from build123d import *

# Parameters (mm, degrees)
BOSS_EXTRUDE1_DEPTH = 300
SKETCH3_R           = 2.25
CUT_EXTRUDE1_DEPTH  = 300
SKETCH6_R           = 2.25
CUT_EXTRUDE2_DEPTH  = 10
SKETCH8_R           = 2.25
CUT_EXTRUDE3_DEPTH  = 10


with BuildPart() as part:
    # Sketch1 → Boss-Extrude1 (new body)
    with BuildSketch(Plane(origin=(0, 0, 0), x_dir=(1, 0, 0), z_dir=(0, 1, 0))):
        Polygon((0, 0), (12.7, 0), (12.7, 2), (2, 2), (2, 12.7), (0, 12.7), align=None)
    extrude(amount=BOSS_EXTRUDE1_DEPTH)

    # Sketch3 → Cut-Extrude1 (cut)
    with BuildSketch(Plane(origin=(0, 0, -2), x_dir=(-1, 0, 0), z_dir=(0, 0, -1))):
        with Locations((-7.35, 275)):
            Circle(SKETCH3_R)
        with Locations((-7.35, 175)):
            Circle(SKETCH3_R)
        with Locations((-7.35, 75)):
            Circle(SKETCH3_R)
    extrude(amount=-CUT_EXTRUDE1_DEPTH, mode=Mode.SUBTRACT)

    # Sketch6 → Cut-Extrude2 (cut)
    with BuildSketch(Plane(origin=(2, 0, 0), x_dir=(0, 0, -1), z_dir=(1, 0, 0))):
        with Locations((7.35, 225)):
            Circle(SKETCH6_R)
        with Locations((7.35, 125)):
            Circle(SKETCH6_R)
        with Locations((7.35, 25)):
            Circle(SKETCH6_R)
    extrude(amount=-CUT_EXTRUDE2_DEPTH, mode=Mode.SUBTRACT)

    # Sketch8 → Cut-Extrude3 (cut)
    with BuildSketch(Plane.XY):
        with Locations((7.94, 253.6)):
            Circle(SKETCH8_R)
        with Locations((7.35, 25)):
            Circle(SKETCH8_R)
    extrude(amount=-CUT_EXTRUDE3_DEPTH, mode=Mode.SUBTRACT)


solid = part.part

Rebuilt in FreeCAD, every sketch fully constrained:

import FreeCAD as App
import Part
import Sketcher
from FreeCAD import Vector


def add_polygon(sketch, points):
    """Adds a closed chain of lines whose ends are joined by coincident constraints."""
    first, n = sketch.GeometryCount, len(points)
    for a, b in zip(points, points[1:] + points[:1]):
        sketch.addGeometry(Part.LineSegment(App.Vector(*a, 0), App.Vector(*b, 0)), False)
    for i in range(n):
        sketch.addConstraint(Sketcher.Constraint("Coincident", first + i, 2, first + (i + 1) % n, 1))

doc = App.newDocument("Part")
body = doc.addObject("PartDesign::Body", "Body")

sketch1 = body.newObject("Sketcher::SketchObject", "Sketch")
sketch1.AttachmentSupport = (doc.getObject("XZ_Plane"), [""])
sketch1.MapMode = "FlatFace"
add_polygon(sketch1, [(0, 0), (12.7, 0), (12.7, -2), (2, -2), (2, -12.7), (0, -12.7)])
sketch1.addConstraint([
    Sketcher.Constraint("Horizontal", 0),
    Sketcher.Constraint("Vertical", 1),
    Sketcher.Constraint("Horizontal", 2),
    Sketcher.Constraint("Vertical", 3),
    Sketcher.Constraint("Horizontal", 4),
    Sketcher.Constraint("Vertical", 5),
    Sketcher.Constraint("Coincident", 5, 2, -1, 1),
    Sketcher.Constraint("Equal", 4, 1),
    Sketcher.Constraint("Equal", 2, 3),
    Sketcher.Constraint("DistanceX", 4, 2, 4, 1, 2.0),
    Sketcher.Constraint("DistanceX", 0, 1, 0, 2, 12.7),
])
pad1 = body.newObject("PartDesign::Pad", "Pad")
pad1.Profile = sketch1
pad1.Length = 300
pad1.Reversed = True

sketch2 = body.newObject("Sketcher::SketchObject", "Sketch001")
sketch2.AttachmentSupport = (doc.getObject("XY_Plane"), [""])
sketch2.MapMode = "FlatFace"
sketch2.AttachmentOffset = App.Placement(Vector(0, 0, -2), App.Rotation())
sketch2.addGeometry([
    Part.Circle(Vector(7.35, 275, 0), Vector(0, 0, 1), 2.25),
    Part.Circle(Vector(7.35, 175, 0), Vector(0, 0, 1), 2.25),
    Part.Circle(Vector(7.35, 75, 0), Vector(0, 0, 1), 2.25),
], False)
sketch2.addConstraint([
    Sketcher.Constraint("Equal", 0, 1),
    Sketcher.Constraint("Equal", 1, 2),
    Sketcher.Constraint("Vertical", 0, 3, 1, 3),
    Sketcher.Constraint("Vertical", 1, 3, 2, 3),
    Sketcher.Constraint("Diameter", 0, 4.5),
    Sketcher.Constraint("DistanceY", -1, 1, 0, 3, 275.0),
    Sketcher.Constraint("DistanceY", -1, 1, 1, 3, 175.0),
    Sketcher.Constraint("DistanceY", -1, 1, 2, 3, 75.0),
    Sketcher.Constraint("DistanceX", -1, 1, 0, 3, 7.35),
])
pocket1 = body.newObject("PartDesign::Pocket", "Pocket")
pocket1.Profile = sketch2
pocket1.Length = 300
pocket1.Reversed = True

sketch3 = body.newObject("Sketcher::SketchObject", "Sketch002")
sketch3.AttachmentSupport = (doc.getObject("YZ_Plane"), [""])
sketch3.MapMode = "FlatFace"
sketch3.AttachmentOffset = App.Placement(Vector(0, 0, 2), App.Rotation())
sketch3.addGeometry([
    Part.Circle(Vector(225, -7.35, 0), Vector(0, 0, 1), 2.25),
    Part.Circle(Vector(125, -7.35, 0), Vector(0, 0, 1), 2.25),
    Part.Circle(Vector(25, -7.35, 0), Vector(0, 0, 1), 2.25),
], False)
sketch3.addConstraint([
    Sketcher.Constraint("Equal", 0, 1),
    Sketcher.Constraint("Equal", 1, 2),
    Sketcher.Constraint("Horizontal", 0, 3, 1, 3),
    Sketcher.Constraint("Horizontal", 1, 3, 2, 3),
    Sketcher.Constraint("Diameter", 0, 4.5),
    Sketcher.Constraint("DistanceX", -1, 1, 0, 3, 225.0),
    Sketcher.Constraint("DistanceX", -1, 1, 1, 3, 125.0),
    Sketcher.Constraint("DistanceX", -1, 1, 2, 3, 25.0),
    Sketcher.Constraint("DistanceY", 0, 3, -1, 1, 7.35),
])
pocket2 = body.newObject("PartDesign::Pocket", "Pocket001")
pocket2.Profile = sketch3
pocket2.Length = 10

sketch4 = body.newObject("Sketcher::SketchObject", "Sketch003")
sketch4.AttachmentSupport = (doc.getObject("XY_Plane"), [""])
sketch4.MapMode = "FlatFace"
sketch4.addGeometry([
    Part.Circle(Vector(7.94, 253.6, 0), Vector(0, 0, 1), 2.25),
    Part.Circle(Vector(7.35, 25, 0), Vector(0, 0, 1), 2.25),
], False)
sketch4.addConstraint([
    Sketcher.Constraint("Equal", 0, 1),
    Sketcher.Constraint("Diameter", 0, 4.5),
    Sketcher.Constraint("DistanceY", -1, 1, 1, 3, 25.0),
    Sketcher.Constraint("DistanceY", -1, 1, 0, 3, 253.6),
    Sketcher.Constraint("DistanceX", -1, 1, 0, 3, 7.94),
    Sketcher.Constraint("DistanceX", -1, 1, 1, 3, 7.35),
])
pocket3 = body.newObject("PartDesign::Pocket", "Pocket002")
pocket3.Profile = sketch4
pocket3.Length = 10

doc.recompute()
